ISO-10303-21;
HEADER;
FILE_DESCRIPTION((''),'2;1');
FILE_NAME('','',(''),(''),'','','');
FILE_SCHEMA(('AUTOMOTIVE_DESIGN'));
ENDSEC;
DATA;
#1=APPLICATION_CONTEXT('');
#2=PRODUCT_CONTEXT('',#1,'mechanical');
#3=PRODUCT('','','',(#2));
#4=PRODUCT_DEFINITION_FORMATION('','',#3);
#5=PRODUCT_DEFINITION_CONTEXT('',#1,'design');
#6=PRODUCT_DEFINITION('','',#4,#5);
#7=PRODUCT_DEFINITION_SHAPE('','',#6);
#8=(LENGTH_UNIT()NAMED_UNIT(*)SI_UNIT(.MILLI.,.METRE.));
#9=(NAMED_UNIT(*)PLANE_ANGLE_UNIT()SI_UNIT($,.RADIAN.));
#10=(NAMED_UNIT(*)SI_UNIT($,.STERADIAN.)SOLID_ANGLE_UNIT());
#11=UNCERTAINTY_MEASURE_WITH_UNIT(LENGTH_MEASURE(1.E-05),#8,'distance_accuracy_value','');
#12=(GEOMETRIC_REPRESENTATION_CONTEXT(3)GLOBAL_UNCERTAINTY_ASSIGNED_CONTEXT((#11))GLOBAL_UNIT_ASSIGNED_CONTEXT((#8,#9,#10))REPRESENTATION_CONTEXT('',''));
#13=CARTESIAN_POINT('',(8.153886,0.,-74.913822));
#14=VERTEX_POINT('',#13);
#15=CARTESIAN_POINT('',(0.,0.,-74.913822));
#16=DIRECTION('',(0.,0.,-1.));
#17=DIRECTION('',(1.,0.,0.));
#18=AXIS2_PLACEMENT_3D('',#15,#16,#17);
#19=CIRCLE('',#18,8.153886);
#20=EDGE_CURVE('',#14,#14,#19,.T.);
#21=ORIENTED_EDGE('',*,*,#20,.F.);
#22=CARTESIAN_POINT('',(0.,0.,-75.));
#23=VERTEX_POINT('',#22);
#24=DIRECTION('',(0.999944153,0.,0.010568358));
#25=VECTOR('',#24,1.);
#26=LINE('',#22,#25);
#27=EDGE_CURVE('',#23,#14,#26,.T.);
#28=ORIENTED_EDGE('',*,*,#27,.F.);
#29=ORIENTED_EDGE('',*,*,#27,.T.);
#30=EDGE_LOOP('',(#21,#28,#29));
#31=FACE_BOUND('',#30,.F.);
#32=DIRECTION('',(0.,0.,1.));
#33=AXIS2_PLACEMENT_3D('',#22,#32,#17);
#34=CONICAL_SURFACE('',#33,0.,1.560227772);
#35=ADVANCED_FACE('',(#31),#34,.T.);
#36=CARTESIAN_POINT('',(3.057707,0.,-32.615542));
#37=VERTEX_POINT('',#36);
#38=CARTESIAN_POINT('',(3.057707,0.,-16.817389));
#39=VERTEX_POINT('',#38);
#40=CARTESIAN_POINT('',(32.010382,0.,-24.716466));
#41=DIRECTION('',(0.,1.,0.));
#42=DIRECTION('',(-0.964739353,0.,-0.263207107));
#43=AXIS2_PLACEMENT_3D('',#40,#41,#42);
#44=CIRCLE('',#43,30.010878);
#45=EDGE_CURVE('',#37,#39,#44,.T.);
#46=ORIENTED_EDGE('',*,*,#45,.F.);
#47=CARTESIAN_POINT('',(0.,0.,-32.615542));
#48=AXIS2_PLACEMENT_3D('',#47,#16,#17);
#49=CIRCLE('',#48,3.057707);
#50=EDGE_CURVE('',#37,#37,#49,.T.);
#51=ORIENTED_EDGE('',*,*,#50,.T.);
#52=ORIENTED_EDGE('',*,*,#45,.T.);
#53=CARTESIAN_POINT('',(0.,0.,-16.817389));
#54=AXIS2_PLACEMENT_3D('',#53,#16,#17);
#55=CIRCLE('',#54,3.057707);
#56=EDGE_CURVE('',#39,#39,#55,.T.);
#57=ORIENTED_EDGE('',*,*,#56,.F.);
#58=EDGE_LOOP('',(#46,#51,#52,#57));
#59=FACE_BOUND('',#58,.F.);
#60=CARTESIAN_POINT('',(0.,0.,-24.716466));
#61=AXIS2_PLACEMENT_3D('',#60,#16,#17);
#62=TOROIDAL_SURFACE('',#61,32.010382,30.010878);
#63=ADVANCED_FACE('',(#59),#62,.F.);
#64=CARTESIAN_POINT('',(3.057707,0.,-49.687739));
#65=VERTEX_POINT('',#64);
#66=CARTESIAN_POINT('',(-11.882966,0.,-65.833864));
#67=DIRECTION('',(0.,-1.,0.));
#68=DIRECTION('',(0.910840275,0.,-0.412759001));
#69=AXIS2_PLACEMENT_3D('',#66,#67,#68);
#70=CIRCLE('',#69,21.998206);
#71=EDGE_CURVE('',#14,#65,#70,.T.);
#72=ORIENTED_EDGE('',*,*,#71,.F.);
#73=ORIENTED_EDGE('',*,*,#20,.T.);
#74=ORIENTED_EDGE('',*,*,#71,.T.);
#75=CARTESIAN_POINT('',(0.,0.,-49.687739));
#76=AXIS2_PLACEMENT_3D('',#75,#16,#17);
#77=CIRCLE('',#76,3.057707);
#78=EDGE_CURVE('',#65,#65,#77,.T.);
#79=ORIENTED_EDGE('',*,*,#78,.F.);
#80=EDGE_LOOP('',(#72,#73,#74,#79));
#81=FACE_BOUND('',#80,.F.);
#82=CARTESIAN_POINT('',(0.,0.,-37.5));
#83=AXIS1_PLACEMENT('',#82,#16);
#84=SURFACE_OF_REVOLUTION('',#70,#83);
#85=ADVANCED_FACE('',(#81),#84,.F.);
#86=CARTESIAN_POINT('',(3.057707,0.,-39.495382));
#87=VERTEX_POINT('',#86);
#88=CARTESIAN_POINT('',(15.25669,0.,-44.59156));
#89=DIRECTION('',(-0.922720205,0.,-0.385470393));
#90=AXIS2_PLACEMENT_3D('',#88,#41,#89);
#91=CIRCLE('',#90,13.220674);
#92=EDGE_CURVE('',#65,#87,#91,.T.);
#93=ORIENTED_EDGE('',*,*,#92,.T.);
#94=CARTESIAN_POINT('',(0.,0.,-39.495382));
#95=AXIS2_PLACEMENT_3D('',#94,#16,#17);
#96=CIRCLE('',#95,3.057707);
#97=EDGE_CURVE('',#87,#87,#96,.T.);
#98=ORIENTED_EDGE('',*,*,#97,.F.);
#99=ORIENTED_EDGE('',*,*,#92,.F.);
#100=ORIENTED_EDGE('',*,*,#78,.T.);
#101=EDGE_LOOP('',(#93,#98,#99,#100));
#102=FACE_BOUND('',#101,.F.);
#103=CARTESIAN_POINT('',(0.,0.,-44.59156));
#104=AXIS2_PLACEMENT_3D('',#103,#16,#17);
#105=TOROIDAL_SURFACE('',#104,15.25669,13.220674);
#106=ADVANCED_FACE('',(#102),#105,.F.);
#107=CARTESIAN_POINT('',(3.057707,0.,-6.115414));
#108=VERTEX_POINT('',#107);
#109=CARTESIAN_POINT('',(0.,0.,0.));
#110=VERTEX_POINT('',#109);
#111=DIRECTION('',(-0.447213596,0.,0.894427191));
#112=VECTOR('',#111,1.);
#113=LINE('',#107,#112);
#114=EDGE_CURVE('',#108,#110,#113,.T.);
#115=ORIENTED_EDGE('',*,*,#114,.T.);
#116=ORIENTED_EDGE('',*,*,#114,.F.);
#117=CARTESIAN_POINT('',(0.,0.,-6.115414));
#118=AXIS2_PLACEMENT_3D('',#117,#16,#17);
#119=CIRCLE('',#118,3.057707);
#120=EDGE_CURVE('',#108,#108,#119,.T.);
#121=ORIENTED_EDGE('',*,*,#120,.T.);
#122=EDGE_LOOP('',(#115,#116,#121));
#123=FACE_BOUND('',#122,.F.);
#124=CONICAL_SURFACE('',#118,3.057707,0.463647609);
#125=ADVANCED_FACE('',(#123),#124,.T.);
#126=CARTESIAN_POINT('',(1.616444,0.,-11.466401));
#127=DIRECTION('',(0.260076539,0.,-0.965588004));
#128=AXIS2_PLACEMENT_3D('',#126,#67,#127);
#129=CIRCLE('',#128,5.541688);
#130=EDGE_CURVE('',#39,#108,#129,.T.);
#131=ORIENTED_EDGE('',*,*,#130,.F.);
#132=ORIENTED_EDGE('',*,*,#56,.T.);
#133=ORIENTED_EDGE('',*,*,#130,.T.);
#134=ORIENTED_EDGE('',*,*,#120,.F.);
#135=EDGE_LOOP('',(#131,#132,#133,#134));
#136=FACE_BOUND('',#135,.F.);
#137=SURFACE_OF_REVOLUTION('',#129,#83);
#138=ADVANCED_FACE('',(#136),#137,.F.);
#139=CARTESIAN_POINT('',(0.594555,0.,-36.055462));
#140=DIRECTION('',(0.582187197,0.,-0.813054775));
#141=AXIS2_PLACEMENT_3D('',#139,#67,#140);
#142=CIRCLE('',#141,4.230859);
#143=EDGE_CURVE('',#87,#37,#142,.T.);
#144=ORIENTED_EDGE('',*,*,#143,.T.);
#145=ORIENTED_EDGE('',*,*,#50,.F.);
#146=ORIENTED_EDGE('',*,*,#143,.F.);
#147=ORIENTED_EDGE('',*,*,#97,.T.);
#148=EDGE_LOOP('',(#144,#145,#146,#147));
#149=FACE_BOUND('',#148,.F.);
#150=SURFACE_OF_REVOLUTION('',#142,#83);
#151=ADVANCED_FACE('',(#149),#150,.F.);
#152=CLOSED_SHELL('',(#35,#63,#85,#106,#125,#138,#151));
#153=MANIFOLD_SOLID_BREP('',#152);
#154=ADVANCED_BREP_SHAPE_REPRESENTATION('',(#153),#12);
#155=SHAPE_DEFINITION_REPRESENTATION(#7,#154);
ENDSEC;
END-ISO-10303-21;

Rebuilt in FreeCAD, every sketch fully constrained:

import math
import FreeCAD as App
import Part
import Sketcher

V = App.Vector

doc = App.newDocument("Part")
body = doc.addObject("PartDesign::Body", "Body")

# Sketch on XZ plane
sketch1 = doc.addObject("Sketcher::SketchObject", "Sketch")
body.addObject(sketch1)
sketch1.AttachmentSupport = (doc.XZ_Plane, [""])
sketch1.MapMode = "FlatFace"
sketch1.addGeometry([
    Part.LineSegment(V(3.057707, -6.115414, 0), V(0, 0, 0)),  # 0
    Part.LineSegment(V(0, 0, 0), V(0, -75, 0)),  # 1
    Part.LineSegment(V(0, -75, 0), V(8.153886, -74.913822, 0)),  # 2
    Part.ArcOfCircle(Part.Circle(V(-11.882966, -65.833864, 0), V(0, 0, 1), 21.998206), math.radians(-24.378269), math.radians(47.220644)),  # 3
    Part.ArcOfCircle(Part.Circle(V(15.25669, -44.59156, 0), V(0, 0, 1), 13.220674), math.radians(157.327054), math.radians(202.672946)),  # 4
    Part.ArcOfCircle(Part.Circle(V(0.594555, -36.055462, 0), V(0, 0, 1), 4.230859), math.radians(-54.395474), math.radians(54.395474)),  # 5
    Part.ArcOfCircle(Part.Circle(V(32.010382, -24.716466, 0), V(0, 0, 1), 30.010878), math.radians(164.739554), math.radians(195.260446)),  # 6
    Part.ArcOfCircle(Part.Circle(V(1.616444, -11.466401, 0), V(0, 0, 1), 5.541688), math.radians(-74.925396), math.radians(74.925396)),  # 7
], False)
sketch1.addConstraint([
    Sketcher.Constraint("Coincident", 0, 2, 1, 1),
    Sketcher.Constraint("Coincident", 1, 2, 2, 1),
    Sketcher.Constraint("Coincident", 2, 2, 3, 1),
    Sketcher.Constraint("Coincident", 3, 2, 4, 2),
    Sketcher.Constraint("Coincident", 4, 1, 5, 1),
    Sketcher.Constraint("Coincident", 5, 2, 6, 2),
    Sketcher.Constraint("Coincident", 6, 1, 7, 1),
    Sketcher.Constraint("Coincident", 7, 2, 0, 1),
    Sketcher.Constraint("Vertical", 1),
    Sketcher.Constraint("Coincident", 0, 2, -1, 1),
    Sketcher.Constraint("Vertical", 3, 2, 4, 1),
    Sketcher.Constraint("Vertical", 4, 1, 5, 2),
    Sketcher.Constraint("Vertical", 5, 2, 6, 1),
    Sketcher.Constraint("Vertical", 6, 1, 7, 2),
    Sketcher.Constraint("DistanceY", 1, 2, 1, 1, 75.0),
    Sketcher.Constraint("Radius", 5, 4.230859),
    Sketcher.Constraint("Radius", 6, 30.010878),
    Sketcher.Constraint("Radius", 7, 5.541688),
    Sketcher.Constraint("Radius", 3, 21.998206),
    Sketcher.Constraint("Radius", 4, 13.220674),
    Sketcher.Constraint("DistanceY", 7, 3, -1, 1, 11.466401),
    Sketcher.Constraint("DistanceY", 4, 3, 5, 3, 8.536099),
    Sketcher.Constraint("DistanceY", 3, 3, 6, 3, 41.117399),
    Sketcher.Constraint("Distance", 0, 6.837241),
    Sketcher.Constraint("Distance", 2, 8.154341),
    Sketcher.Constraint("DistanceX", -1, 1, 4, 3, 15.25669),
    Sketcher.Constraint("DistanceY", 4, 3, -1, 1, 44.59156),
    Sketcher.Constraint("DistanceY", 2, 2, -1, 1, 74.913822),
])
revolution = doc.addObject("PartDesign::Revolution", "Revolution")
body.addObject(revolution)
revolution.Profile = sketch1
revolution.ReferenceAxis = (sketch1, ["V_Axis"])
revolution.Angle = 360

doc.recompute()
